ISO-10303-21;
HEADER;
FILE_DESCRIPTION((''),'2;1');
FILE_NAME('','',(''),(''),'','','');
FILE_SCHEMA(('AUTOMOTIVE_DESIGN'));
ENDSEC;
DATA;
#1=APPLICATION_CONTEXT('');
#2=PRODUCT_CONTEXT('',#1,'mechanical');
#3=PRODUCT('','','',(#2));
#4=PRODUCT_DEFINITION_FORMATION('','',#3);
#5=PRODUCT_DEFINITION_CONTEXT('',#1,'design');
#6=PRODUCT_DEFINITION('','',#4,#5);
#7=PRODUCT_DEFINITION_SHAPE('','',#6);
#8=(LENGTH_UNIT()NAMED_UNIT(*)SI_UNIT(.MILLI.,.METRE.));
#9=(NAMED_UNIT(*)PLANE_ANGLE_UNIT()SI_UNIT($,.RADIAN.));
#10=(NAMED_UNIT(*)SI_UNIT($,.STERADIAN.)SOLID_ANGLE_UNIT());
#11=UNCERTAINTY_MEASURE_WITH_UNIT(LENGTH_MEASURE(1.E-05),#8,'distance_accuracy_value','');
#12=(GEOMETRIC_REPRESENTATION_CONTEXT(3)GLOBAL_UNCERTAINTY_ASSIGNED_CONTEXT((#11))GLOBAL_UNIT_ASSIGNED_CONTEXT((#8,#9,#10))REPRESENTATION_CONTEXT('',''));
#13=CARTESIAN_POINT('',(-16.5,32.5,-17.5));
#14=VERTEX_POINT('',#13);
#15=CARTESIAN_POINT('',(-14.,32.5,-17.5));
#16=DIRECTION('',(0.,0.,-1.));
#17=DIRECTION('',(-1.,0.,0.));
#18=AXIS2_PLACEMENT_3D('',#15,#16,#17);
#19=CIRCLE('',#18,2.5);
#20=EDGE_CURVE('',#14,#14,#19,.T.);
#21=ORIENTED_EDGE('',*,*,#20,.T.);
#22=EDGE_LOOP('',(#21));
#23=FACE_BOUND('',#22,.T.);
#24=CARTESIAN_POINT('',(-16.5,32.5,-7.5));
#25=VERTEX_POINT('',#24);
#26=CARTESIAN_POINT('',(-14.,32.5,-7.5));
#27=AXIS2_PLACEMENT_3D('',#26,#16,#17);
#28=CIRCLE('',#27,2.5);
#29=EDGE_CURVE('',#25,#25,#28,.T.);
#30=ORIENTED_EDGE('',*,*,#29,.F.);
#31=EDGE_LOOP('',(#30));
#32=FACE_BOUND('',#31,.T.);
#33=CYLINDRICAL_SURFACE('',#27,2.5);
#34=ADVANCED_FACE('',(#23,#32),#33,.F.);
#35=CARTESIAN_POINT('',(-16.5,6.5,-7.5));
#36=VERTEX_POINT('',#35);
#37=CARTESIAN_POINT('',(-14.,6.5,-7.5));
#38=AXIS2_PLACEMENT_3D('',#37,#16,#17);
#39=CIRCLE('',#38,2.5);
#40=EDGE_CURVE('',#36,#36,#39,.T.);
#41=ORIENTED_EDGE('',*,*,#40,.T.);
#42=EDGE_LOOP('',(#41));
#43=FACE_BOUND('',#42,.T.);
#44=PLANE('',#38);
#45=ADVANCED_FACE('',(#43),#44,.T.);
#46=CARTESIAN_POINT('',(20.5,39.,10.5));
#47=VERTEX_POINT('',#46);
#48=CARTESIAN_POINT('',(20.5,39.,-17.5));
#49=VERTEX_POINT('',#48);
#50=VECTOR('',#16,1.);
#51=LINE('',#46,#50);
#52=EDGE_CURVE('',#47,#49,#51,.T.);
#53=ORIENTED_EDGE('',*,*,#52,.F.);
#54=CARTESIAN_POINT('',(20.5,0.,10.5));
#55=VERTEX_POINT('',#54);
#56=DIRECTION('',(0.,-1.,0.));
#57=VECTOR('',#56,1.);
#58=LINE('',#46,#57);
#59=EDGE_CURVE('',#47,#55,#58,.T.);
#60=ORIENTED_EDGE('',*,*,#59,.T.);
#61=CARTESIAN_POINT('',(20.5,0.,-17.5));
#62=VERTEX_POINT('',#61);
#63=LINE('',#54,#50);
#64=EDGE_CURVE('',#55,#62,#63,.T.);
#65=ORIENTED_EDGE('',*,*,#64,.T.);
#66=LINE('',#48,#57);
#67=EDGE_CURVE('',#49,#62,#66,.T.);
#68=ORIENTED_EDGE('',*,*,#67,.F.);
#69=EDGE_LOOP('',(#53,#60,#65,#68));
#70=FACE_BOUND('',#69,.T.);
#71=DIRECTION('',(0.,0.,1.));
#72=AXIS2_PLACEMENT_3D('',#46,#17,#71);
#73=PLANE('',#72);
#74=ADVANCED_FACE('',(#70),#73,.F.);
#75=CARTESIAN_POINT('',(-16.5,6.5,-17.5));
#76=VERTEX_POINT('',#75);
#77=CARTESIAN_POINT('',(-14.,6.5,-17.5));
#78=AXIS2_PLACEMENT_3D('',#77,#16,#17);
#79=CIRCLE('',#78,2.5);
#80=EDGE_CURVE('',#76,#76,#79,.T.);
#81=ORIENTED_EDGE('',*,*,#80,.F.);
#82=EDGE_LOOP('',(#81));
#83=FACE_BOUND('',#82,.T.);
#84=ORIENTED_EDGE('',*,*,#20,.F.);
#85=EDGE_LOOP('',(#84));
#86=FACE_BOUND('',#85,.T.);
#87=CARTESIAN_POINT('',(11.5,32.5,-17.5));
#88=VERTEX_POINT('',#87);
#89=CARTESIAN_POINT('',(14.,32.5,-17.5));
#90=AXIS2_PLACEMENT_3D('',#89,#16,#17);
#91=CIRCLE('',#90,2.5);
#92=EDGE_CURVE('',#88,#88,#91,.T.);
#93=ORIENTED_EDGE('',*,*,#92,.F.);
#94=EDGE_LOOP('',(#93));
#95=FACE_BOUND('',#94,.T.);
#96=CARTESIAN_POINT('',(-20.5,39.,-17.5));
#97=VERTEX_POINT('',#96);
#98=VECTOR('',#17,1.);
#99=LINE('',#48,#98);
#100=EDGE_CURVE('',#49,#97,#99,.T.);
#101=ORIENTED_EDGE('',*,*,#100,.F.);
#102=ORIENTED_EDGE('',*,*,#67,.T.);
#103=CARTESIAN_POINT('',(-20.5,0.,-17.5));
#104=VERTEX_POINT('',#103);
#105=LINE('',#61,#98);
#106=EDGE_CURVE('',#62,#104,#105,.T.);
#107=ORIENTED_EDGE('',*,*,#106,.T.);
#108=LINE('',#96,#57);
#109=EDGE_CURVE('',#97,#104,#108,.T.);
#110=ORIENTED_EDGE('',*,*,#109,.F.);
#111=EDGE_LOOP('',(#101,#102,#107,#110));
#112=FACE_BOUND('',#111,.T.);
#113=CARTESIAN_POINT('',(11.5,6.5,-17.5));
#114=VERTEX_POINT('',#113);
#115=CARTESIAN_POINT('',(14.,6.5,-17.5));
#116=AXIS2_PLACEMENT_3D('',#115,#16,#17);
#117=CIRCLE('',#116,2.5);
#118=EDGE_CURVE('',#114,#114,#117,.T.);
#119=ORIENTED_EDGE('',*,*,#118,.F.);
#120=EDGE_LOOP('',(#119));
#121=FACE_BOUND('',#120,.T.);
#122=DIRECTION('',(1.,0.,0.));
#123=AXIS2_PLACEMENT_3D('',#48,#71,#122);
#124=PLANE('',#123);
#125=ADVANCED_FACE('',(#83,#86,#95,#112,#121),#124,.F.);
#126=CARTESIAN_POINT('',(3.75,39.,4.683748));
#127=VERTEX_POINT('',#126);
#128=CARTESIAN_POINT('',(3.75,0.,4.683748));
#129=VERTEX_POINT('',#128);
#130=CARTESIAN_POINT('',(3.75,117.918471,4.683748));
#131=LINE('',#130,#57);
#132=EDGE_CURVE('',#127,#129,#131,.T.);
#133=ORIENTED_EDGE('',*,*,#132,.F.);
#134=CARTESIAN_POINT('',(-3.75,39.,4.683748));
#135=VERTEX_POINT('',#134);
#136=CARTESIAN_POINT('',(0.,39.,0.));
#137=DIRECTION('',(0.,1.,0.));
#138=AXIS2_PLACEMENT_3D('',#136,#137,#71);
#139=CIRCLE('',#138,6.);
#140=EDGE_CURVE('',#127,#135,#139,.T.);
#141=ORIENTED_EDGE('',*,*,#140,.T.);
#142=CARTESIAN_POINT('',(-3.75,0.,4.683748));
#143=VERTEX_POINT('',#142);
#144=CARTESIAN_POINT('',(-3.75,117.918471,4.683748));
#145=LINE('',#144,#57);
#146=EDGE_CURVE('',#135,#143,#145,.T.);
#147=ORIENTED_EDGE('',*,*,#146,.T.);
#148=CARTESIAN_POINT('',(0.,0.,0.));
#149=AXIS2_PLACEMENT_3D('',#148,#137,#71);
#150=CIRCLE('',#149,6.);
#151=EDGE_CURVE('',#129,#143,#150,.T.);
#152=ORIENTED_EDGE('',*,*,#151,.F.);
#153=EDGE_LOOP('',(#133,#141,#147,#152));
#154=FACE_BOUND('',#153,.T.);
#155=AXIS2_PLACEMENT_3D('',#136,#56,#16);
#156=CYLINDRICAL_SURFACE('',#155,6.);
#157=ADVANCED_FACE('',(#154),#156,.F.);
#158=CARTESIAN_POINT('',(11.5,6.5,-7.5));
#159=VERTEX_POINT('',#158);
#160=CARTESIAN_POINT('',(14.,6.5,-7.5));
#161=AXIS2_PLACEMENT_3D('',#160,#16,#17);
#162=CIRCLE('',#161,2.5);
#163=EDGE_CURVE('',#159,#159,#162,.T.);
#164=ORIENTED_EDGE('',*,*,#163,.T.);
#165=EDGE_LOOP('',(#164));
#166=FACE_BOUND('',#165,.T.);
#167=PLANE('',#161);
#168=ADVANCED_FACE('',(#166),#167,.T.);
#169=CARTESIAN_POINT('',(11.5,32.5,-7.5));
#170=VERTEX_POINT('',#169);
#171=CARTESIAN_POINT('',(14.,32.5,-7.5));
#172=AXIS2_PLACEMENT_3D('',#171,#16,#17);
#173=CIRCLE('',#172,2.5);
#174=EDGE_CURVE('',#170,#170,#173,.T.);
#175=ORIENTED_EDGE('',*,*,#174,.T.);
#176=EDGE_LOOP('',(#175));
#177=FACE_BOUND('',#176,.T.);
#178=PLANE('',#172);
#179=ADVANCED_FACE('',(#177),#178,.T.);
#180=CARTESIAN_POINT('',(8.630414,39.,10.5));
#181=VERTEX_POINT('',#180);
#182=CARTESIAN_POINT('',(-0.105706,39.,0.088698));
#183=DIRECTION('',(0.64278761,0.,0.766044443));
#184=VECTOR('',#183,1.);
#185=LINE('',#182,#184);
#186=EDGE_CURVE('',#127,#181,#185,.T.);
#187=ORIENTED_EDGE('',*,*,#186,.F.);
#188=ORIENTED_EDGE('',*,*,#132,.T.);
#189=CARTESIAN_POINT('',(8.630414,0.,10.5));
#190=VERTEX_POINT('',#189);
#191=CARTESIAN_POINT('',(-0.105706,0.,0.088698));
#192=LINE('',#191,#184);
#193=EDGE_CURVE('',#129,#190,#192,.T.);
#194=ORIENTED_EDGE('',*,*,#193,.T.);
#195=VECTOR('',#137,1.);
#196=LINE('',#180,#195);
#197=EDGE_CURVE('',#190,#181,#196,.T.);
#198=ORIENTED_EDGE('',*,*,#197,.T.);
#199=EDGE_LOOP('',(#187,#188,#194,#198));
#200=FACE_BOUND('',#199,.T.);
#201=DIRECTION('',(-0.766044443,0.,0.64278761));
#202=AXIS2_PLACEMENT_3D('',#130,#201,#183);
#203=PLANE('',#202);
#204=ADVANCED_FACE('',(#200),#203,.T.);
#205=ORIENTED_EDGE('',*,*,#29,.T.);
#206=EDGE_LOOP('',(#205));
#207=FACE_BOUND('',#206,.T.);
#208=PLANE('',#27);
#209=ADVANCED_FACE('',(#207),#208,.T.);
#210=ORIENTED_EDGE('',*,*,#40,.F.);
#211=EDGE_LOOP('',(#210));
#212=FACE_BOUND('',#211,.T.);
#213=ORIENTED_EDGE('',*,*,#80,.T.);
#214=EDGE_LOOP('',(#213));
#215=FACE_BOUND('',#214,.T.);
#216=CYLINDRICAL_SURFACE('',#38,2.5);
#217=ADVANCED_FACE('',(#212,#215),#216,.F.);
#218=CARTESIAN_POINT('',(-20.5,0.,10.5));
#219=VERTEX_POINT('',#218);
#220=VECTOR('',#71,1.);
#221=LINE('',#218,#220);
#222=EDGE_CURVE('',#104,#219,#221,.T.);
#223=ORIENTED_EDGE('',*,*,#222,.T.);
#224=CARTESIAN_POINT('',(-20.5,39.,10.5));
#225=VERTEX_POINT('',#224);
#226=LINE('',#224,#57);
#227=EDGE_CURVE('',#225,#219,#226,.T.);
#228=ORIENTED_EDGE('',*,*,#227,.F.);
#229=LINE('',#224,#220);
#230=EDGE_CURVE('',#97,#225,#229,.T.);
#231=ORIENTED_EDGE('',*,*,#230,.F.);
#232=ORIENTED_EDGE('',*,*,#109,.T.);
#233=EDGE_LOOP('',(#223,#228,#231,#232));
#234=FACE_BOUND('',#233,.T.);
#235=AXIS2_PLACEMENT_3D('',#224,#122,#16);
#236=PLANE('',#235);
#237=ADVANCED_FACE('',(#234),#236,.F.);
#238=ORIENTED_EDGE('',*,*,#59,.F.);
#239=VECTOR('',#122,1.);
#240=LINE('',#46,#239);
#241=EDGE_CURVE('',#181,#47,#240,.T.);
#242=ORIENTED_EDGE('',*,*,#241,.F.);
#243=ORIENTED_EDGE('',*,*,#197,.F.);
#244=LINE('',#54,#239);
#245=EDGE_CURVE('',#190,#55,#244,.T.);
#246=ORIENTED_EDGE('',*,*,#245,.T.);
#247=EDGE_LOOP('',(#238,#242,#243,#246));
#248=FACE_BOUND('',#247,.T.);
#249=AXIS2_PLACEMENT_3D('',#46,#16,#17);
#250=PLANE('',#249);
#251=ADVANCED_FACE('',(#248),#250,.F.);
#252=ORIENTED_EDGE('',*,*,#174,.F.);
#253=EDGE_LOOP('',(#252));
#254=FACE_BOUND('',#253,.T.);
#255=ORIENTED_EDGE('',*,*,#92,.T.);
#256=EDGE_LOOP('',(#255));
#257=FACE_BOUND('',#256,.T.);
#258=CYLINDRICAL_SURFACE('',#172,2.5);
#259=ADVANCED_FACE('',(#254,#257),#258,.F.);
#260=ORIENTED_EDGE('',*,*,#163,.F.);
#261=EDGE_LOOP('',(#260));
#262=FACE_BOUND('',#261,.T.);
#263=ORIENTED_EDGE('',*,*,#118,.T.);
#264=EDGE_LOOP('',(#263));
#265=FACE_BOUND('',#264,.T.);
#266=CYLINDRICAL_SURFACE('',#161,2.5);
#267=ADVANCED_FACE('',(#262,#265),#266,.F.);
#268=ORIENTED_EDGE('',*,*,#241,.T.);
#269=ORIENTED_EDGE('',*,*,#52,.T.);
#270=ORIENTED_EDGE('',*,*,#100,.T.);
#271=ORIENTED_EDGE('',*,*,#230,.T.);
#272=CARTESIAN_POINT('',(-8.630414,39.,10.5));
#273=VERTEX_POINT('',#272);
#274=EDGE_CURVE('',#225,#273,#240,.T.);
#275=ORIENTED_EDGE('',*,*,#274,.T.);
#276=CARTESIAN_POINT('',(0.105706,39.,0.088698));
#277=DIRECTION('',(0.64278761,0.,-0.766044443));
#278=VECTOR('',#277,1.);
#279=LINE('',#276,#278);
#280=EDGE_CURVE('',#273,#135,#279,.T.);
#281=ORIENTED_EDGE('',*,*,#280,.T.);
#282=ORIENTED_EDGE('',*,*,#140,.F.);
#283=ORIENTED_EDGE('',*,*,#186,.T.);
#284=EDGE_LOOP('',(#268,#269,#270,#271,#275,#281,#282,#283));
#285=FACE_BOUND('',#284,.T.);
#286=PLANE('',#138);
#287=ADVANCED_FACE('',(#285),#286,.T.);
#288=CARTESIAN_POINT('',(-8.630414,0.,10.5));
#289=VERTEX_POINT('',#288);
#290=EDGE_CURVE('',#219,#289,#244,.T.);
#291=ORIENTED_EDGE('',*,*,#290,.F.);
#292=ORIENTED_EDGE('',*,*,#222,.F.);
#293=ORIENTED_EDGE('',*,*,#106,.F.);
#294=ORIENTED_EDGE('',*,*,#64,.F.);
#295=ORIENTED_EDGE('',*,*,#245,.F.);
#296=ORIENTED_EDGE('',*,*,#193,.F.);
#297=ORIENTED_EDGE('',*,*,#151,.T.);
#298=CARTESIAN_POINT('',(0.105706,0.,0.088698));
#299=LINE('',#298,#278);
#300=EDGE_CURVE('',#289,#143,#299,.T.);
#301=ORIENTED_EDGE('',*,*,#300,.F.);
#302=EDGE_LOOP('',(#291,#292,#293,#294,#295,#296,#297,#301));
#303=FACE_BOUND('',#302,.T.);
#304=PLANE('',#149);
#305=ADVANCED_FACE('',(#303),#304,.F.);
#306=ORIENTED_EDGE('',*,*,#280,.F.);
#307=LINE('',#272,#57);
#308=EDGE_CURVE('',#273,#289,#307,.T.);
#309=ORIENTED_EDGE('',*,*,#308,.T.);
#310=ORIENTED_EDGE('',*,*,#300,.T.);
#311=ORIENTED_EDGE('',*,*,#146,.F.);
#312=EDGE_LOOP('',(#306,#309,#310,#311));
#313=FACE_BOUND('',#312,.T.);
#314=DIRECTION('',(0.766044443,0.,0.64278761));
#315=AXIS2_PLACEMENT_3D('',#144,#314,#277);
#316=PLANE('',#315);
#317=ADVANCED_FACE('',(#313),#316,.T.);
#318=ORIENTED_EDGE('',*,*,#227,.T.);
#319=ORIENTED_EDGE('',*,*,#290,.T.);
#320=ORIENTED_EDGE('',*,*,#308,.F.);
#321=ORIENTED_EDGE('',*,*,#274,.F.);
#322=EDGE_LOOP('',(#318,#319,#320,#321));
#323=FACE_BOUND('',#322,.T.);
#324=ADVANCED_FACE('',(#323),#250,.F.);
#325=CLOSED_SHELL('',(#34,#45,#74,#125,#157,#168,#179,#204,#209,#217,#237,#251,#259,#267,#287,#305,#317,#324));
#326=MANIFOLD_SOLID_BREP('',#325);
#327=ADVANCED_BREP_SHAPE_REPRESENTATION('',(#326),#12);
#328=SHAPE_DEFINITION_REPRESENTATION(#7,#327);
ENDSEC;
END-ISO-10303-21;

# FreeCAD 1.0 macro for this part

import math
import FreeCAD as App
import Part
import Sketcher

V = App.Vector
Q = App.Units.Quantity

doc = App.newDocument("Part")
body = doc.addObject("PartDesign::Body", "Body")

# Sketch on XZ plane
sketch1 = body.newObject("Sketcher::SketchObject", "Sketch")
sketch1.AttachmentSupport = (doc.getObject("XZ_Plane"), [""])
sketch1.MapMode = "FlatFace"
sketch1.addGeometry([
    Part.LineSegment(V(-20, -18, 0), V(-20, 10, 0)),  # 0
    Part.LineSegment(V(-20, 10, 0), V(20, 10, 0)),  # 1
    Part.LineSegment(V(20, 10, 0), V(20, -18, 0)),  # 2
    Part.LineSegment(V(20, -18, 0), V(-20, -18, 0)),  # 3
    Part.Circle(V(0, 0, 0), V(0, 0, 1), 6),  # 4
], False)
sketch1.addConstraint([
    Sketcher.Constraint("Coincident", 0, 2, 1, 1),
    Sketcher.Constraint("Coincident", 1, 2, 2, 1),
    Sketcher.Constraint("Coincident", 2, 2, 3, 1),
    Sketcher.Constraint("Coincident", 3, 2, 0, 1),
    Sketcher.Constraint("Vertical", 0),
    Sketcher.Constraint("Horizontal", 1),
    Sketcher.Constraint("Vertical", 2),
    Sketcher.Constraint("Horizontal", 3),
    Sketcher.Constraint("Coincident", 4, 3, -1, 1),
    Sketcher.Constraint("Diameter", 4, 12.0),
    Sketcher.Constraint("DistanceX", 1, 1, 1, 2, 41.0),
    Sketcher.Constraint("DistanceY", 0, 1, 0, 2, 28.0),
    Sketcher.Constraint("DistanceX", 0, 2, -1, 1, 20.5),
    Sketcher.Constraint("DistanceY", -1, 1, 0, 2, 10.5),
])
pad1 = body.newObject("PartDesign::Pad", "Pad")
pad1.Profile = sketch1
pad1.Length = 39
pad1.Reversed = True

# Sketch on XZ plane
sketch2 = body.newObject("Sketcher::SketchObject", "Sketch001")
sketch2.AttachmentSupport = (doc.getObject("XZ_Plane"), [""])
sketch2.MapMode = "FlatFace"
sketch2.AttachmentOffset = App.Placement(V(0, 0, -39), App.Rotation())
sketch2.addGeometry([
    Part.ArcOfCircle(Part.Circle(V(0, 0, 0), V(0, 0, 1), 6), math.radians(51), math.radians(129)),
    Part.LineSegment(V(-4, 5, 0), V(-9, 10, 0)),
    Part.LineSegment(V(-9, 10, 0), V(9, 10, 0)),
    Part.LineSegment(V(9, 10, 0), V(4, 5, 0)),
], False)
sketch2.addConstraint([
    Sketcher.Constraint("Coincident", 0, 2, 1, 1),
    Sketcher.Constraint("Coincident", 1, 2, 2, 1),
    Sketcher.Constraint("Coincident", 2, 2, 3, 1),
    Sketcher.Constraint("Coincident", 3, 2, 0, 1),
    Sketcher.Constraint("Horizontal", 2),
    Sketcher.Constraint("Coincident", 0, 3, -1, 1),
    Sketcher.Constraint("Horizontal", 0, 2, 3, 2),
    Sketcher.Constraint("Equal", 1, 3),
    Sketcher.Constraint("Radius", 0, 6.0),
    Sketcher.Constraint("Angle", 1, Q("130 deg")),
    Sketcher.Constraint("DistanceY", -1, 1, 1, 2, 10.5),
    Sketcher.Constraint("DistanceX", 0, 2, 3, 2, 7.5),
])
pocket1 = body.newObject("PartDesign::Pocket", "Pocket")
pocket1.Profile = sketch2
pocket1.Type = "ThroughAll"
pocket1.Midplane = True

# Sketch on XY plane
sketch3 = body.newObject("Sketcher::SketchObject", "Sketch002")
sketch3.AttachmentSupport = (doc.getObject("XY_Plane"), [""])
sketch3.MapMode = "FlatFace"
sketch3.AttachmentOffset = App.Placement(V(0, 0, -17.5), App.Rotation())
sketch3.addGeometry([
    Part.Circle(V(-14, 32.5, 0), V(0, 0, 1), 2.5),
    Part.Circle(V(14, 6.5, 0), V(0, 0, 1), 2.5),
    Part.Circle(V(14, 32.5, 0), V(0, 0, 1), 2.5),
    Part.Circle(V(-14, 6.5, 0), V(0, 0, 1), 2.5),
], False)
sketch3.addConstraint([
    Sketcher.Constraint("Equal", 0, 1),
    Sketcher.Constraint("Equal", 1, 2),
    Sketcher.Constraint("Equal", 2, 3),
    Sketcher.Constraint("Symmetric", 0, 3, 2, 3, -2),
    Sketcher.Constraint("Symmetric", 1, 3, 3, 3, -2),
    Sketcher.Constraint("Vertical", 1, 3, 2, 3),
    Sketcher.Constraint("Diameter", 0, 5.0),
    Sketcher.Constraint("DistanceX", 0, 3, -1, 1, 14.0),
    Sketcher.Constraint("DistanceY", 1, 3, 0, 3, 26.0),
    Sketcher.Constraint("DistanceY", -1, 1, 0, 3, 32.5),
])
pocket2 = body.newObject("PartDesign::Pocket", "Pocket001")
pocket2.Profile = sketch3
pocket2.Length = 10
pocket2.Reversed = True

doc.recompute()
